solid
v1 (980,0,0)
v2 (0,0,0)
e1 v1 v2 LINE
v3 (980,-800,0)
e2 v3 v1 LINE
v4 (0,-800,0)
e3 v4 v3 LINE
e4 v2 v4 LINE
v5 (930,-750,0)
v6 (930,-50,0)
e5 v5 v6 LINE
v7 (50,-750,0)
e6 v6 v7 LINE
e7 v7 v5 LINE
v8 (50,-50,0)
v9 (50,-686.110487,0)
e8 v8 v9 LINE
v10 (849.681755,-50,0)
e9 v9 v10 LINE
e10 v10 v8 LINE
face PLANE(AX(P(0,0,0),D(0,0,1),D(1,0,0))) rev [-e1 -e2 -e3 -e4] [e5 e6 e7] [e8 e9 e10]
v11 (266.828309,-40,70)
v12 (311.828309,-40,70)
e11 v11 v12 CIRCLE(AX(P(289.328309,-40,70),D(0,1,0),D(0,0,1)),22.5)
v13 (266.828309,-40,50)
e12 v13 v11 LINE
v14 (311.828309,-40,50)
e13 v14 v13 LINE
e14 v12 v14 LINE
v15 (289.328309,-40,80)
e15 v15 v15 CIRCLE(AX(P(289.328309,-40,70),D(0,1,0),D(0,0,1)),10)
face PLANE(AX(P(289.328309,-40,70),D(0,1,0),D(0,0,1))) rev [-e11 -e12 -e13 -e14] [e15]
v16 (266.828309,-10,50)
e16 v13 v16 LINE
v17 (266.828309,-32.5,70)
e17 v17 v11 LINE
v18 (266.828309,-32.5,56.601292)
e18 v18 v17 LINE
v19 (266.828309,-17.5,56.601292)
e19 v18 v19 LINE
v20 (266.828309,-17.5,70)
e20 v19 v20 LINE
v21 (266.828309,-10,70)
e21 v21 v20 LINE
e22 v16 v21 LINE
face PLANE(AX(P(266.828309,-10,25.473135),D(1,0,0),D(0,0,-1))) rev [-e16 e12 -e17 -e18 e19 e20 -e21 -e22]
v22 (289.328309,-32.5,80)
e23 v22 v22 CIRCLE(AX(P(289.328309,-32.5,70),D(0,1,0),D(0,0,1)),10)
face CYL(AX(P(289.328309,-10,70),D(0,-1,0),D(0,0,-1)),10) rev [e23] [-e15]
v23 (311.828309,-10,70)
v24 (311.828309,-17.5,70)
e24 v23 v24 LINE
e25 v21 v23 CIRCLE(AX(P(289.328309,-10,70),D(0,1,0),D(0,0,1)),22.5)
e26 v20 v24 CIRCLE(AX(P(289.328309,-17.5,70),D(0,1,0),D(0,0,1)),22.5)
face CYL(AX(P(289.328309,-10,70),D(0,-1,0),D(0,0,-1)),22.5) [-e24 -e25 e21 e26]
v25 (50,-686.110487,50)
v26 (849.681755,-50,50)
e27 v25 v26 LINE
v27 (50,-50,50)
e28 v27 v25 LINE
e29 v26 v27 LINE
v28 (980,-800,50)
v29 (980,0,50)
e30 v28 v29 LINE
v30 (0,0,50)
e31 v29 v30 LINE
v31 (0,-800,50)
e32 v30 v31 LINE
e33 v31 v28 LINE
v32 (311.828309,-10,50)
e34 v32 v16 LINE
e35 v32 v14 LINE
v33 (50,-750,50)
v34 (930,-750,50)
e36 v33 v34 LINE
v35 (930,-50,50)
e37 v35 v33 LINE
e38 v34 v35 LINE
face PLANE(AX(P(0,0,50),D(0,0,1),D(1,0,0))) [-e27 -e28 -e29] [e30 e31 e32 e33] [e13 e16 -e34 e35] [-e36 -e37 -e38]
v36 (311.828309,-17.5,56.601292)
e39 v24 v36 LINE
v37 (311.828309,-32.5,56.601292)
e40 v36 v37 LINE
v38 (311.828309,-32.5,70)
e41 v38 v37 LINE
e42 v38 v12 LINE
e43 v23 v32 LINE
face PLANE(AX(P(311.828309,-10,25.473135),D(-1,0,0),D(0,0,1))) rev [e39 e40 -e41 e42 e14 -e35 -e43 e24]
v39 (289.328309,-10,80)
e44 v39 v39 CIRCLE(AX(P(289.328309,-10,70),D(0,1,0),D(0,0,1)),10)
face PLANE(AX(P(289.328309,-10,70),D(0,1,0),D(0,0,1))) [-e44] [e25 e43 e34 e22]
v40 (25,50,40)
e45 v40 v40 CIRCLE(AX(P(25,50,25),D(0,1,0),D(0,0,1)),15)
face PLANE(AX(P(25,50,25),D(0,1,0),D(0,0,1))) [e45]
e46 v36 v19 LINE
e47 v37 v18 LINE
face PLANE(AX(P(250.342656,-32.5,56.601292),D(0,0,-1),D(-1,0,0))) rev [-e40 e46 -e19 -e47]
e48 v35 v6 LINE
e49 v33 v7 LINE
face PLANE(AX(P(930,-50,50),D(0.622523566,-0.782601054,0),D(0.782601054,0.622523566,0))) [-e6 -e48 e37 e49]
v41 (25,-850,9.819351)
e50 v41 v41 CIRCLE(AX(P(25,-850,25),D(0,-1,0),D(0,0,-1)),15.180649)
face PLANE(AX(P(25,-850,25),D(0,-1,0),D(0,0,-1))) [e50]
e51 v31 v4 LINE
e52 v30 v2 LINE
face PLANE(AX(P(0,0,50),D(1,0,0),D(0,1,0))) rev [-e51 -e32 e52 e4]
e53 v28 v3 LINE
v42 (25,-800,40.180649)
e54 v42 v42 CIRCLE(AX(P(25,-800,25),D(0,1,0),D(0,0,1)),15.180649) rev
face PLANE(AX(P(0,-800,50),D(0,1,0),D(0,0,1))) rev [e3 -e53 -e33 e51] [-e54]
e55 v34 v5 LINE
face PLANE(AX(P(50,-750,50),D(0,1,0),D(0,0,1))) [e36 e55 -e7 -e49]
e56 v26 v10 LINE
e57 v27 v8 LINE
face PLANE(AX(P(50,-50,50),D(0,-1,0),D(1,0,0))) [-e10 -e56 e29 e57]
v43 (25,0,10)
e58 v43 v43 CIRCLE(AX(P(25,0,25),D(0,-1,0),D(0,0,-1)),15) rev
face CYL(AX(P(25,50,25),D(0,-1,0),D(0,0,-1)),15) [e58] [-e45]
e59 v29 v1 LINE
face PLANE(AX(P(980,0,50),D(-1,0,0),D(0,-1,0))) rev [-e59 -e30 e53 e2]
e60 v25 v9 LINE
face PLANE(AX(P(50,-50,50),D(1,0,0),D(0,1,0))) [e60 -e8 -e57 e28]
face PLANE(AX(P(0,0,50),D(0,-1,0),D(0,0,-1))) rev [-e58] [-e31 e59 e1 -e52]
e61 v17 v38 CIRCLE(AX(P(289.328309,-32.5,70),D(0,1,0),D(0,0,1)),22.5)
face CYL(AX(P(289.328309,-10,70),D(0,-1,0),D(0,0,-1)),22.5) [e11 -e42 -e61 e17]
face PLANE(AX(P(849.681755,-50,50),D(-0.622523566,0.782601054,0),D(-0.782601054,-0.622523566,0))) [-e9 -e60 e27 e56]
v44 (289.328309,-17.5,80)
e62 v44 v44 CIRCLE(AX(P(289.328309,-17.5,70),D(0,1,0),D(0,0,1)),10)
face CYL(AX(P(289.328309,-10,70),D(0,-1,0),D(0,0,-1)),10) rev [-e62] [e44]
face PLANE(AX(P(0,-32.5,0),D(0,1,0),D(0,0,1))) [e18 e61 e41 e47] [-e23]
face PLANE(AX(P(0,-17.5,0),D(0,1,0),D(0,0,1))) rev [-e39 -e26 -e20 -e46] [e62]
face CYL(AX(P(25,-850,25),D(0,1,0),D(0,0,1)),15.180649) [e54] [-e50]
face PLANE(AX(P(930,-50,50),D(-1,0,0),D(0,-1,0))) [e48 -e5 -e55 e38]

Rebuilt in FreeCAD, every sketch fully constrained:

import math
import FreeCAD as App
import Part
import Sketcher
from FreeCAD import Vector


def add_polygon(sketch, points):
    """Adds a closed chain of lines whose ends are joined by coincident constraints."""
    first, n = sketch.GeometryCount, len(points)
    for a, b in zip(points, points[1:] + points[:1]):
        sketch.addGeometry(Part.LineSegment(App.Vector(*a, 0), App.Vector(*b, 0)), False)
    for i in range(n):
        sketch.addConstraint(Sketcher.Constraint("Coincident", first + i, 2, first + (i + 1) % n, 1))

doc = App.newDocument("Part")
params = doc.addObject("Spreadsheet::Sheet", "Params")
for row, (alias, value) in enumerate([
    ("sketch1_width", "980 mm"),
    ("sketch1_width2", "880 mm"),
    ("sketch1_height", "800 mm"),
    ("sketch1_height2", "700 mm"),
    ("pad1_length", "50 mm"),
    ("sketch2_diameter", "30 mm"),
    ("pad2_length", "50 mm"),
    ("pad3_length", "50 mm"),
    ("sketch4_diameter", "20 mm"),
    ("sketch4_radius", "22.5 mm"),
    ("pad4_length", "30 mm"),
    ("pocket1_length", "15 mm"),
], start=1):
    params.set(f"A{row}", alias)
    params.set(f"B{row}", "=" + value)
    params.setAlias(f"B{row}", alias)

body = doc.addObject("PartDesign::Body", "Body")

# Sketch on XY plane
sketch1 = body.newObject("Sketcher::SketchObject", "Sketch")
sketch1.AttachmentSupport = (doc.getObject("XY_Plane"), [""])
sketch1.MapMode = "FlatFace"
add_polygon(sketch1, [(0, 0), (0, -800), (980, -800), (980, 0)])  # lines 0-3
add_polygon(sketch1, [(50, -686), (50, -50), (850, -50)])  # lines 4-6
add_polygon(sketch1, [(50, -750), (930, -50), (930, -750)])  # lines 7-9
sketch1.addConstraint([
    Sketcher.Constraint("Vertical", 0),
    Sketcher.Constraint("Horizontal", 1),
    Sketcher.Constraint("Vertical", 2),
    Sketcher.Constraint("Horizontal", 3),
    Sketcher.Constraint("Vertical", 4),
    Sketcher.Constraint("Horizontal", 5),
    Sketcher.Constraint("Vertical", 8),
    Sketcher.Constraint("Horizontal", 9),
    Sketcher.Constraint("Coincident", 3, 2, -1, 1),
    Sketcher.Constraint("Parallel", 6, 7),
    Sketcher.Constraint("Horizontal", 5, 2, 7, 2),
    Sketcher.Constraint("Vertical", 6, 2, 9, 2),
    Sketcher.Constraint("DistanceX", 1, 1, 1, 2, 980.0),
    Sketcher.Constraint("DistanceX", 9, 2, 9, 1, 880.0),
    Sketcher.Constraint("DistanceY", 0, 2, 0, 1, 800.0),
    Sketcher.Constraint("DistanceY", 8, 2, 8, 1, 700.0),
    Sketcher.Constraint("DistanceX", -1, 1, 4, 2, 50.0),
    Sketcher.Constraint("DistanceY", 4, 2, -1, 1, 50.0),
    Sketcher.Constraint("DistanceX", 5, 1, 5, 2, 799.681755),
])
sketch1.setExpression("Constraints[22]", "Params.sketch1_width")
sketch1.setExpression("Constraints[23]", "Params.sketch1_width2")
sketch1.setExpression("Constraints[24]", "Params.sketch1_height")
sketch1.setExpression("Constraints[25]", "Params.sketch1_height2")
pad1 = body.newObject("PartDesign::Pad", "Pad")
pad1.Profile = sketch1
pad1.setExpression("Length", "Params.pad1_length")

# Sketch on XZ plane
sketch2 = body.newObject("Sketcher::SketchObject", "Sketch001")
sketch2.AttachmentSupport = (doc.getObject("XZ_Plane"), [""])
sketch2.MapMode = "FlatFace"
sketch2.addGeometry(Part.Circle(Vector(25, 25, 0), Vector(0, 0, 1), 15), False)
sketch2.addConstraint([
    Sketcher.Constraint("Diameter", 0, 30.0),
    Sketcher.Constraint("DistanceX", -1, 1, 0, 3, 25.0),
    Sketcher.Constraint("DistanceY", -1, 1, 0, 3, 25.0),
])
sketch2.setExpression("Constraints[0]", "Params.sketch2_diameter")
pad2 = body.newObject("PartDesign::Pad", "Pad001")
pad2.Profile = sketch2
pad2.setExpression("Length", "Params.pad2_length")
pad2.Reversed = True

# Sketch on XZ plane
sketch3 = body.newObject("Sketcher::SketchObject", "Sketch002")
sketch3.AttachmentSupport = (doc.getObject("XZ_Plane"), [""])
sketch3.MapMode = "FlatFace"
sketch3.AttachmentOffset = App.Placement(Vector(0, 0, 800), App.Rotation())
sketch3.addGeometry(Part.Circle(Vector(25, 25, 0), Vector(0, 0, 1), 15), False)
sketch3.addConstraint([
    Sketcher.Constraint("DistanceX", -1, 1, 0, 3, 25.0),
    Sketcher.Constraint("DistanceY", -1, 1, 0, 3, 25.0),
    Sketcher.Constraint("Diameter", 0, 30.361299),
])
pad3 = body.newObject("PartDesign::Pad", "Pad002")
pad3.Profile = sketch3
pad3.setExpression("Length", "Params.pad3_length")

# Sketch on XZ plane
sketch4 = body.newObject("Sketcher::SketchObject", "Sketch003")
sketch4.AttachmentSupport = (doc.getObject("XZ_Plane"), [""])
sketch4.MapMode = "FlatFace"
sketch4.AttachmentOffset = App.Placement(Vector(0, 0, 25), App.Rotation())
sketch4.addGeometry([
    Part.LineSegment(Vector(312, 25, 0), Vector(267, 25, 0)),  # 0
    Part.LineSegment(Vector(267, 25, 0), Vector(267, 70, 0)),  # 1
    Part.ArcOfCircle(Part.Circle(Vector(289, 70, 0), Vector(0, 0, 1), 22), math.radians(0), math.radians(180)),  # 2
    Part.LineSegment(Vector(312, 70, 0), Vector(312, 25, 0)),  # 3
    Part.Circle(Vector(289, 70, 0), Vector(0, 0, 1), 10),  # 4
], False)
sketch4.addConstraint([
    Sketcher.Constraint("Coincident", 0, 2, 1, 1),
    Sketcher.Constraint("Tangent", 1, 2, 2, 2),
    Sketcher.Constraint("Tangent", 2, 1, 3, 1),
    Sketcher.Constraint("Coincident", 3, 2, 0, 1),
    Sketcher.Constraint("Horizontal", 0),
    Sketcher.Constraint("Vertical", 1),
    Sketcher.Constraint("Vertical", 3),
    Sketcher.Constraint("Coincident", 4, 3, 2, 3),
    Sketcher.Constraint("Diameter", 4, 20.0),
    Sketcher.Constraint("Radius", 2, 22.5),
    Sketcher.Constraint("DistanceY", -1, 1, 2, 3, 70.0),
    Sketcher.Constraint("DistanceY", 1, 1, 1, 2, 44.526865),
    Sketcher.Constraint("DistanceX", -1, 1, 2, 3, 289.328309),
])
sketch4.setExpression("Constraints[8]", "Params.sketch4_diameter")
sketch4.setExpression("Constraints[9]", "Params.sketch4_radius")
pad4 = body.newObject("PartDesign::Pad", "Pad003")
pad4.Profile = sketch4
pad4.setExpression("Length", "Params.pad4_length")
pad4.Midplane = True

# Sketch on XZ plane
sketch5 = body.newObject("Sketcher::SketchObject", "Sketch004")
sketch5.AttachmentSupport = (doc.getObject("XZ_Plane"), [""])
sketch5.MapMode = "FlatFace"
sketch5.AttachmentOffset = App.Placement(Vector(0, 0, 25), App.Rotation())
add_polygon(sketch5, [(250, 57), (250, 112), (327, 112), (327, 57)])  # lines 0-3
sketch5.addConstraint([
    Sketcher.Constraint("Vertical", 0),
    Sketcher.Constraint("Horizontal", 1),
    Sketcher.Constraint("Vertical", 2),
    Sketcher.Constraint("Horizontal", 3),
    Sketcher.Constraint("DistanceX", 1, 1, 1, 2, 76.670866),
    Sketcher.Constraint("DistanceY", 0, 1, 0, 2, 55.476163),
    Sketcher.Constraint("DistanceX", -1, 1, 1, 2, 327.013521),
    Sketcher.Constraint("DistanceY", -1, 1, 2, 2, 56.601292),
])
pocket1 = body.newObject("PartDesign::Pocket", "Pocket")
pocket1.Profile = sketch5
pocket1.setExpression("Length", "Params.pocket1_length")
pocket1.Midplane = True

doc.recompute()
